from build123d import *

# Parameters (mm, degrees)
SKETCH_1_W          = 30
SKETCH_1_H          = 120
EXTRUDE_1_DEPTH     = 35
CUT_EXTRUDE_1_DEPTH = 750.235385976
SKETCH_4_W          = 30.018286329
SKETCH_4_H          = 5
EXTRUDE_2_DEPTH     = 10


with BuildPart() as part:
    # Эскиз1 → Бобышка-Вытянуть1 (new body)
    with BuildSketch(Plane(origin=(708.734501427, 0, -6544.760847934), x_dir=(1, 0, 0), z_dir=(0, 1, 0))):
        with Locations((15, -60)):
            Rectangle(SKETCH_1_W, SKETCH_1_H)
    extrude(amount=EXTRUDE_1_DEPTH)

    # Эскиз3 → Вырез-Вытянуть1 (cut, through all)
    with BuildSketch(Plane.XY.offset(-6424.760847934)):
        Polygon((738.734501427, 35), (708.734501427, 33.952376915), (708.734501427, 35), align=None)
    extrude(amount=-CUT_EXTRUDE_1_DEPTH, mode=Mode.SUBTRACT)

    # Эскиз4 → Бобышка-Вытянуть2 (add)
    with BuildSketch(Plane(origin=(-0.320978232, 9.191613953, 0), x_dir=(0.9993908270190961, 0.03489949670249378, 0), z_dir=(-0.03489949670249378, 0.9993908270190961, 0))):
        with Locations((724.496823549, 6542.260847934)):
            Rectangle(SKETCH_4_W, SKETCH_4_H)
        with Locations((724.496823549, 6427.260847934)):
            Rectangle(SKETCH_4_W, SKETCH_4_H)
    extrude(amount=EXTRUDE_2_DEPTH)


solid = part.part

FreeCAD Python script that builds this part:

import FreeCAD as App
import Part
import Sketcher
Q = App.Units.Quantity

doc = App.newDocument("Part")
body = doc.addObject("PartDesign::Body", "Body")

# Sketch on XZ plane
sketch1 = body.newObject("Sketcher::SketchObject", "Sketch")
sketch1.AttachmentSupport = (doc.getObject("XZ_Plane"), [""])
sketch1.MapMode = "FlatFace"
sketch1.addGeometry([
    Part.LineSegment(App.Vector(709, -6545, 0), App.Vector(709, -6425, 0)),
    Part.LineSegment(App.Vector(709, -6425, 0), App.Vector(739, -6425, 0)),
    Part.LineSegment(App.Vector(739, -6425, 0), App.Vector(739, -6545, 0)),
    Part.LineSegment(App.Vector(739, -6545, 0), App.Vector(709, -6545, 0)),
], False)
sketch1.addConstraint([
    Sketcher.Constraint("Coincident", 0, 2, 1, 1),
    Sketcher.Constraint("Coincident", 1, 2, 2, 1),
    Sketcher.Constraint("Coincident", 2, 2, 3, 1),
    Sketcher.Constraint("Coincident", 3, 2, 0, 1),
    Sketcher.Constraint("Vertical", 0),
    Sketcher.Constraint("Horizontal", 1),
    Sketcher.Constraint("Vertical", 2),
    Sketcher.Constraint("Horizontal", 3),
    Sketcher.Constraint("DistanceX", 1, 1, 1, 2, 30.0),
    Sketcher.Constraint("DistanceY", 0, 1, 0, 2, 120.0),
    Sketcher.Constraint("DistanceX", -1, 1, 0, 2, 708.734501),
    Sketcher.Constraint("DistanceY", 0, 2, -1, 1, 6424.760848),
])
pad1 = body.newObject("PartDesign::Pad", "Pad")
pad1.Profile = sketch1
pad1.Length = 35
pad1.Reversed = True

# Sketch on XY plane
sketch2 = body.newObject("Sketcher::SketchObject", "Sketch001")
sketch2.AttachmentSupport = (doc.getObject("XY_Plane"), [""])
sketch2.MapMode = "FlatFace"
sketch2.AttachmentOffset = App.Placement(App.Vector(0, 0, -6424.760848), App.Rotation())
sketch2.addGeometry([
    Part.LineSegment(App.Vector(708.7, 34, 0), App.Vector(738.7, 35, 0)),
    Part.LineSegment(App.Vector(738.7, 35, 0), App.Vector(708.7, 35, 0)),
    Part.LineSegment(App.Vector(708.7, 35, 0), App.Vector(708.7, 34, 0)),
], False)
sketch2.addConstraint([
    Sketcher.Constraint("Coincident", 0, 2, 1, 1),
    Sketcher.Constraint("Coincident", 1, 2, 2, 1),
    Sketcher.Constraint("Coincident", 2, 2, 0, 1),
    Sketcher.Constraint("Horizontal", 1),
    Sketcher.Constraint("Vertical", 2),
    Sketcher.Constraint("DistanceX", 1, 2, 1, 1, 30.0),
    Sketcher.Constraint("Angle", 0, Q("2 deg")),
    Sketcher.Constraint("DistanceY", -1, 1, 0, 2, 35.0),
    Sketcher.Constraint("DistanceX", -1, 1, 0, 2, 738.734501),
])
pocket1 = body.newObject("PartDesign::Pocket", "Pocket")
pocket1.Profile = sketch2
pocket1.Type = "ThroughAll"

# Sketch on an angled plane
sketch3 = body.newObject("Sketcher::SketchObject", "Sketch002")
sketch3.Placement = App.Placement(App.Vector(-0.320978, 9.191614, 0), App.Rotation(App.Vector(0.999390827, 0.034899497, 0), App.Vector(0, 0, -1), App.Vector(-0.034899497, 0.999390827, 0), "ZXY"))
sketch3.addGeometry([
    Part.LineSegment(App.Vector(709, 6545, 0), App.Vector(709, 6540, 0)),  # 0
    Part.LineSegment(App.Vector(709, 6540, 0), App.Vector(740, 6540, 0)),  # 1
    Part.LineSegment(App.Vector(740, 6540, 0), App.Vector(740, 6545, 0)),  # 2
    Part.LineSegment(App.Vector(740, 6545, 0), App.Vector(709, 6545, 0)),  # 3
    Part.LineSegment(App.Vector(709, 6430, 0), App.Vector(709, 6425, 0)),  # 4
    Part.LineSegment(App.Vector(709, 6425, 0), App.Vector(740, 6425, 0)),  # 5
    Part.LineSegment(App.Vector(740, 6425, 0), App.Vector(740, 6430, 0)),  # 6
    Part.LineSegment(App.Vector(740, 6430, 0), App.Vector(709, 6430, 0)),  # 7
], False)
sketch3.addConstraint([
    Sketcher.Constraint("Coincident", 0, 2, 1, 1),
    Sketcher.Constraint("Coincident", 1, 2, 2, 1),
    Sketcher.Constraint("Coincident", 2, 2, 3, 1),
    Sketcher.Constraint("Coincident", 3, 2, 0, 1),
    Sketcher.Constraint("Coincident", 4, 2, 5, 1),
    Sketcher.Constraint("Coincident", 5, 2, 6, 1),
    Sketcher.Constraint("Coincident", 6, 2, 7, 1),
    Sketcher.Constraint("Coincident", 7, 2, 4, 1),
    Sketcher.Constraint("Vertical", 0),
    Sketcher.Constraint("Horizontal", 1),
    Sketcher.Constraint("Vertical", 2),
    Sketcher.Constraint("Horizontal", 3),
    Sketcher.Constraint("Vertical", 4),
    Sketcher.Constraint("Horizontal", 5),
    Sketcher.Constraint("Vertical", 6),
    Sketcher.Constraint("Horizontal", 7),
    Sketcher.Constraint("Vertical", 3, 2, 4, 2),
    Sketcher.Constraint("Vertical", 2, 2, 5, 2),
    Sketcher.Constraint("Equal", 2, 4),
    Sketcher.Constraint("DistanceY", 0, 2, 0, 1, 5.0),
    Sketcher.Constraint("DistanceY", 4, 2, 0, 2, 115.0),
    Sketcher.Constraint("DistanceX", 1, 1, 1, 2, 30.018286),
    Sketcher.Constraint("DistanceX", -1, 1, 0, 2, 709.48768),
    Sketcher.Constraint("DistanceY", -1, 1, 0, 2, 6539.760848),
])
pad2 = body.newObject("PartDesign::Pad", "Pad001")
pad2.Profile = sketch3
pad2.Length = 10

doc.recompute()
